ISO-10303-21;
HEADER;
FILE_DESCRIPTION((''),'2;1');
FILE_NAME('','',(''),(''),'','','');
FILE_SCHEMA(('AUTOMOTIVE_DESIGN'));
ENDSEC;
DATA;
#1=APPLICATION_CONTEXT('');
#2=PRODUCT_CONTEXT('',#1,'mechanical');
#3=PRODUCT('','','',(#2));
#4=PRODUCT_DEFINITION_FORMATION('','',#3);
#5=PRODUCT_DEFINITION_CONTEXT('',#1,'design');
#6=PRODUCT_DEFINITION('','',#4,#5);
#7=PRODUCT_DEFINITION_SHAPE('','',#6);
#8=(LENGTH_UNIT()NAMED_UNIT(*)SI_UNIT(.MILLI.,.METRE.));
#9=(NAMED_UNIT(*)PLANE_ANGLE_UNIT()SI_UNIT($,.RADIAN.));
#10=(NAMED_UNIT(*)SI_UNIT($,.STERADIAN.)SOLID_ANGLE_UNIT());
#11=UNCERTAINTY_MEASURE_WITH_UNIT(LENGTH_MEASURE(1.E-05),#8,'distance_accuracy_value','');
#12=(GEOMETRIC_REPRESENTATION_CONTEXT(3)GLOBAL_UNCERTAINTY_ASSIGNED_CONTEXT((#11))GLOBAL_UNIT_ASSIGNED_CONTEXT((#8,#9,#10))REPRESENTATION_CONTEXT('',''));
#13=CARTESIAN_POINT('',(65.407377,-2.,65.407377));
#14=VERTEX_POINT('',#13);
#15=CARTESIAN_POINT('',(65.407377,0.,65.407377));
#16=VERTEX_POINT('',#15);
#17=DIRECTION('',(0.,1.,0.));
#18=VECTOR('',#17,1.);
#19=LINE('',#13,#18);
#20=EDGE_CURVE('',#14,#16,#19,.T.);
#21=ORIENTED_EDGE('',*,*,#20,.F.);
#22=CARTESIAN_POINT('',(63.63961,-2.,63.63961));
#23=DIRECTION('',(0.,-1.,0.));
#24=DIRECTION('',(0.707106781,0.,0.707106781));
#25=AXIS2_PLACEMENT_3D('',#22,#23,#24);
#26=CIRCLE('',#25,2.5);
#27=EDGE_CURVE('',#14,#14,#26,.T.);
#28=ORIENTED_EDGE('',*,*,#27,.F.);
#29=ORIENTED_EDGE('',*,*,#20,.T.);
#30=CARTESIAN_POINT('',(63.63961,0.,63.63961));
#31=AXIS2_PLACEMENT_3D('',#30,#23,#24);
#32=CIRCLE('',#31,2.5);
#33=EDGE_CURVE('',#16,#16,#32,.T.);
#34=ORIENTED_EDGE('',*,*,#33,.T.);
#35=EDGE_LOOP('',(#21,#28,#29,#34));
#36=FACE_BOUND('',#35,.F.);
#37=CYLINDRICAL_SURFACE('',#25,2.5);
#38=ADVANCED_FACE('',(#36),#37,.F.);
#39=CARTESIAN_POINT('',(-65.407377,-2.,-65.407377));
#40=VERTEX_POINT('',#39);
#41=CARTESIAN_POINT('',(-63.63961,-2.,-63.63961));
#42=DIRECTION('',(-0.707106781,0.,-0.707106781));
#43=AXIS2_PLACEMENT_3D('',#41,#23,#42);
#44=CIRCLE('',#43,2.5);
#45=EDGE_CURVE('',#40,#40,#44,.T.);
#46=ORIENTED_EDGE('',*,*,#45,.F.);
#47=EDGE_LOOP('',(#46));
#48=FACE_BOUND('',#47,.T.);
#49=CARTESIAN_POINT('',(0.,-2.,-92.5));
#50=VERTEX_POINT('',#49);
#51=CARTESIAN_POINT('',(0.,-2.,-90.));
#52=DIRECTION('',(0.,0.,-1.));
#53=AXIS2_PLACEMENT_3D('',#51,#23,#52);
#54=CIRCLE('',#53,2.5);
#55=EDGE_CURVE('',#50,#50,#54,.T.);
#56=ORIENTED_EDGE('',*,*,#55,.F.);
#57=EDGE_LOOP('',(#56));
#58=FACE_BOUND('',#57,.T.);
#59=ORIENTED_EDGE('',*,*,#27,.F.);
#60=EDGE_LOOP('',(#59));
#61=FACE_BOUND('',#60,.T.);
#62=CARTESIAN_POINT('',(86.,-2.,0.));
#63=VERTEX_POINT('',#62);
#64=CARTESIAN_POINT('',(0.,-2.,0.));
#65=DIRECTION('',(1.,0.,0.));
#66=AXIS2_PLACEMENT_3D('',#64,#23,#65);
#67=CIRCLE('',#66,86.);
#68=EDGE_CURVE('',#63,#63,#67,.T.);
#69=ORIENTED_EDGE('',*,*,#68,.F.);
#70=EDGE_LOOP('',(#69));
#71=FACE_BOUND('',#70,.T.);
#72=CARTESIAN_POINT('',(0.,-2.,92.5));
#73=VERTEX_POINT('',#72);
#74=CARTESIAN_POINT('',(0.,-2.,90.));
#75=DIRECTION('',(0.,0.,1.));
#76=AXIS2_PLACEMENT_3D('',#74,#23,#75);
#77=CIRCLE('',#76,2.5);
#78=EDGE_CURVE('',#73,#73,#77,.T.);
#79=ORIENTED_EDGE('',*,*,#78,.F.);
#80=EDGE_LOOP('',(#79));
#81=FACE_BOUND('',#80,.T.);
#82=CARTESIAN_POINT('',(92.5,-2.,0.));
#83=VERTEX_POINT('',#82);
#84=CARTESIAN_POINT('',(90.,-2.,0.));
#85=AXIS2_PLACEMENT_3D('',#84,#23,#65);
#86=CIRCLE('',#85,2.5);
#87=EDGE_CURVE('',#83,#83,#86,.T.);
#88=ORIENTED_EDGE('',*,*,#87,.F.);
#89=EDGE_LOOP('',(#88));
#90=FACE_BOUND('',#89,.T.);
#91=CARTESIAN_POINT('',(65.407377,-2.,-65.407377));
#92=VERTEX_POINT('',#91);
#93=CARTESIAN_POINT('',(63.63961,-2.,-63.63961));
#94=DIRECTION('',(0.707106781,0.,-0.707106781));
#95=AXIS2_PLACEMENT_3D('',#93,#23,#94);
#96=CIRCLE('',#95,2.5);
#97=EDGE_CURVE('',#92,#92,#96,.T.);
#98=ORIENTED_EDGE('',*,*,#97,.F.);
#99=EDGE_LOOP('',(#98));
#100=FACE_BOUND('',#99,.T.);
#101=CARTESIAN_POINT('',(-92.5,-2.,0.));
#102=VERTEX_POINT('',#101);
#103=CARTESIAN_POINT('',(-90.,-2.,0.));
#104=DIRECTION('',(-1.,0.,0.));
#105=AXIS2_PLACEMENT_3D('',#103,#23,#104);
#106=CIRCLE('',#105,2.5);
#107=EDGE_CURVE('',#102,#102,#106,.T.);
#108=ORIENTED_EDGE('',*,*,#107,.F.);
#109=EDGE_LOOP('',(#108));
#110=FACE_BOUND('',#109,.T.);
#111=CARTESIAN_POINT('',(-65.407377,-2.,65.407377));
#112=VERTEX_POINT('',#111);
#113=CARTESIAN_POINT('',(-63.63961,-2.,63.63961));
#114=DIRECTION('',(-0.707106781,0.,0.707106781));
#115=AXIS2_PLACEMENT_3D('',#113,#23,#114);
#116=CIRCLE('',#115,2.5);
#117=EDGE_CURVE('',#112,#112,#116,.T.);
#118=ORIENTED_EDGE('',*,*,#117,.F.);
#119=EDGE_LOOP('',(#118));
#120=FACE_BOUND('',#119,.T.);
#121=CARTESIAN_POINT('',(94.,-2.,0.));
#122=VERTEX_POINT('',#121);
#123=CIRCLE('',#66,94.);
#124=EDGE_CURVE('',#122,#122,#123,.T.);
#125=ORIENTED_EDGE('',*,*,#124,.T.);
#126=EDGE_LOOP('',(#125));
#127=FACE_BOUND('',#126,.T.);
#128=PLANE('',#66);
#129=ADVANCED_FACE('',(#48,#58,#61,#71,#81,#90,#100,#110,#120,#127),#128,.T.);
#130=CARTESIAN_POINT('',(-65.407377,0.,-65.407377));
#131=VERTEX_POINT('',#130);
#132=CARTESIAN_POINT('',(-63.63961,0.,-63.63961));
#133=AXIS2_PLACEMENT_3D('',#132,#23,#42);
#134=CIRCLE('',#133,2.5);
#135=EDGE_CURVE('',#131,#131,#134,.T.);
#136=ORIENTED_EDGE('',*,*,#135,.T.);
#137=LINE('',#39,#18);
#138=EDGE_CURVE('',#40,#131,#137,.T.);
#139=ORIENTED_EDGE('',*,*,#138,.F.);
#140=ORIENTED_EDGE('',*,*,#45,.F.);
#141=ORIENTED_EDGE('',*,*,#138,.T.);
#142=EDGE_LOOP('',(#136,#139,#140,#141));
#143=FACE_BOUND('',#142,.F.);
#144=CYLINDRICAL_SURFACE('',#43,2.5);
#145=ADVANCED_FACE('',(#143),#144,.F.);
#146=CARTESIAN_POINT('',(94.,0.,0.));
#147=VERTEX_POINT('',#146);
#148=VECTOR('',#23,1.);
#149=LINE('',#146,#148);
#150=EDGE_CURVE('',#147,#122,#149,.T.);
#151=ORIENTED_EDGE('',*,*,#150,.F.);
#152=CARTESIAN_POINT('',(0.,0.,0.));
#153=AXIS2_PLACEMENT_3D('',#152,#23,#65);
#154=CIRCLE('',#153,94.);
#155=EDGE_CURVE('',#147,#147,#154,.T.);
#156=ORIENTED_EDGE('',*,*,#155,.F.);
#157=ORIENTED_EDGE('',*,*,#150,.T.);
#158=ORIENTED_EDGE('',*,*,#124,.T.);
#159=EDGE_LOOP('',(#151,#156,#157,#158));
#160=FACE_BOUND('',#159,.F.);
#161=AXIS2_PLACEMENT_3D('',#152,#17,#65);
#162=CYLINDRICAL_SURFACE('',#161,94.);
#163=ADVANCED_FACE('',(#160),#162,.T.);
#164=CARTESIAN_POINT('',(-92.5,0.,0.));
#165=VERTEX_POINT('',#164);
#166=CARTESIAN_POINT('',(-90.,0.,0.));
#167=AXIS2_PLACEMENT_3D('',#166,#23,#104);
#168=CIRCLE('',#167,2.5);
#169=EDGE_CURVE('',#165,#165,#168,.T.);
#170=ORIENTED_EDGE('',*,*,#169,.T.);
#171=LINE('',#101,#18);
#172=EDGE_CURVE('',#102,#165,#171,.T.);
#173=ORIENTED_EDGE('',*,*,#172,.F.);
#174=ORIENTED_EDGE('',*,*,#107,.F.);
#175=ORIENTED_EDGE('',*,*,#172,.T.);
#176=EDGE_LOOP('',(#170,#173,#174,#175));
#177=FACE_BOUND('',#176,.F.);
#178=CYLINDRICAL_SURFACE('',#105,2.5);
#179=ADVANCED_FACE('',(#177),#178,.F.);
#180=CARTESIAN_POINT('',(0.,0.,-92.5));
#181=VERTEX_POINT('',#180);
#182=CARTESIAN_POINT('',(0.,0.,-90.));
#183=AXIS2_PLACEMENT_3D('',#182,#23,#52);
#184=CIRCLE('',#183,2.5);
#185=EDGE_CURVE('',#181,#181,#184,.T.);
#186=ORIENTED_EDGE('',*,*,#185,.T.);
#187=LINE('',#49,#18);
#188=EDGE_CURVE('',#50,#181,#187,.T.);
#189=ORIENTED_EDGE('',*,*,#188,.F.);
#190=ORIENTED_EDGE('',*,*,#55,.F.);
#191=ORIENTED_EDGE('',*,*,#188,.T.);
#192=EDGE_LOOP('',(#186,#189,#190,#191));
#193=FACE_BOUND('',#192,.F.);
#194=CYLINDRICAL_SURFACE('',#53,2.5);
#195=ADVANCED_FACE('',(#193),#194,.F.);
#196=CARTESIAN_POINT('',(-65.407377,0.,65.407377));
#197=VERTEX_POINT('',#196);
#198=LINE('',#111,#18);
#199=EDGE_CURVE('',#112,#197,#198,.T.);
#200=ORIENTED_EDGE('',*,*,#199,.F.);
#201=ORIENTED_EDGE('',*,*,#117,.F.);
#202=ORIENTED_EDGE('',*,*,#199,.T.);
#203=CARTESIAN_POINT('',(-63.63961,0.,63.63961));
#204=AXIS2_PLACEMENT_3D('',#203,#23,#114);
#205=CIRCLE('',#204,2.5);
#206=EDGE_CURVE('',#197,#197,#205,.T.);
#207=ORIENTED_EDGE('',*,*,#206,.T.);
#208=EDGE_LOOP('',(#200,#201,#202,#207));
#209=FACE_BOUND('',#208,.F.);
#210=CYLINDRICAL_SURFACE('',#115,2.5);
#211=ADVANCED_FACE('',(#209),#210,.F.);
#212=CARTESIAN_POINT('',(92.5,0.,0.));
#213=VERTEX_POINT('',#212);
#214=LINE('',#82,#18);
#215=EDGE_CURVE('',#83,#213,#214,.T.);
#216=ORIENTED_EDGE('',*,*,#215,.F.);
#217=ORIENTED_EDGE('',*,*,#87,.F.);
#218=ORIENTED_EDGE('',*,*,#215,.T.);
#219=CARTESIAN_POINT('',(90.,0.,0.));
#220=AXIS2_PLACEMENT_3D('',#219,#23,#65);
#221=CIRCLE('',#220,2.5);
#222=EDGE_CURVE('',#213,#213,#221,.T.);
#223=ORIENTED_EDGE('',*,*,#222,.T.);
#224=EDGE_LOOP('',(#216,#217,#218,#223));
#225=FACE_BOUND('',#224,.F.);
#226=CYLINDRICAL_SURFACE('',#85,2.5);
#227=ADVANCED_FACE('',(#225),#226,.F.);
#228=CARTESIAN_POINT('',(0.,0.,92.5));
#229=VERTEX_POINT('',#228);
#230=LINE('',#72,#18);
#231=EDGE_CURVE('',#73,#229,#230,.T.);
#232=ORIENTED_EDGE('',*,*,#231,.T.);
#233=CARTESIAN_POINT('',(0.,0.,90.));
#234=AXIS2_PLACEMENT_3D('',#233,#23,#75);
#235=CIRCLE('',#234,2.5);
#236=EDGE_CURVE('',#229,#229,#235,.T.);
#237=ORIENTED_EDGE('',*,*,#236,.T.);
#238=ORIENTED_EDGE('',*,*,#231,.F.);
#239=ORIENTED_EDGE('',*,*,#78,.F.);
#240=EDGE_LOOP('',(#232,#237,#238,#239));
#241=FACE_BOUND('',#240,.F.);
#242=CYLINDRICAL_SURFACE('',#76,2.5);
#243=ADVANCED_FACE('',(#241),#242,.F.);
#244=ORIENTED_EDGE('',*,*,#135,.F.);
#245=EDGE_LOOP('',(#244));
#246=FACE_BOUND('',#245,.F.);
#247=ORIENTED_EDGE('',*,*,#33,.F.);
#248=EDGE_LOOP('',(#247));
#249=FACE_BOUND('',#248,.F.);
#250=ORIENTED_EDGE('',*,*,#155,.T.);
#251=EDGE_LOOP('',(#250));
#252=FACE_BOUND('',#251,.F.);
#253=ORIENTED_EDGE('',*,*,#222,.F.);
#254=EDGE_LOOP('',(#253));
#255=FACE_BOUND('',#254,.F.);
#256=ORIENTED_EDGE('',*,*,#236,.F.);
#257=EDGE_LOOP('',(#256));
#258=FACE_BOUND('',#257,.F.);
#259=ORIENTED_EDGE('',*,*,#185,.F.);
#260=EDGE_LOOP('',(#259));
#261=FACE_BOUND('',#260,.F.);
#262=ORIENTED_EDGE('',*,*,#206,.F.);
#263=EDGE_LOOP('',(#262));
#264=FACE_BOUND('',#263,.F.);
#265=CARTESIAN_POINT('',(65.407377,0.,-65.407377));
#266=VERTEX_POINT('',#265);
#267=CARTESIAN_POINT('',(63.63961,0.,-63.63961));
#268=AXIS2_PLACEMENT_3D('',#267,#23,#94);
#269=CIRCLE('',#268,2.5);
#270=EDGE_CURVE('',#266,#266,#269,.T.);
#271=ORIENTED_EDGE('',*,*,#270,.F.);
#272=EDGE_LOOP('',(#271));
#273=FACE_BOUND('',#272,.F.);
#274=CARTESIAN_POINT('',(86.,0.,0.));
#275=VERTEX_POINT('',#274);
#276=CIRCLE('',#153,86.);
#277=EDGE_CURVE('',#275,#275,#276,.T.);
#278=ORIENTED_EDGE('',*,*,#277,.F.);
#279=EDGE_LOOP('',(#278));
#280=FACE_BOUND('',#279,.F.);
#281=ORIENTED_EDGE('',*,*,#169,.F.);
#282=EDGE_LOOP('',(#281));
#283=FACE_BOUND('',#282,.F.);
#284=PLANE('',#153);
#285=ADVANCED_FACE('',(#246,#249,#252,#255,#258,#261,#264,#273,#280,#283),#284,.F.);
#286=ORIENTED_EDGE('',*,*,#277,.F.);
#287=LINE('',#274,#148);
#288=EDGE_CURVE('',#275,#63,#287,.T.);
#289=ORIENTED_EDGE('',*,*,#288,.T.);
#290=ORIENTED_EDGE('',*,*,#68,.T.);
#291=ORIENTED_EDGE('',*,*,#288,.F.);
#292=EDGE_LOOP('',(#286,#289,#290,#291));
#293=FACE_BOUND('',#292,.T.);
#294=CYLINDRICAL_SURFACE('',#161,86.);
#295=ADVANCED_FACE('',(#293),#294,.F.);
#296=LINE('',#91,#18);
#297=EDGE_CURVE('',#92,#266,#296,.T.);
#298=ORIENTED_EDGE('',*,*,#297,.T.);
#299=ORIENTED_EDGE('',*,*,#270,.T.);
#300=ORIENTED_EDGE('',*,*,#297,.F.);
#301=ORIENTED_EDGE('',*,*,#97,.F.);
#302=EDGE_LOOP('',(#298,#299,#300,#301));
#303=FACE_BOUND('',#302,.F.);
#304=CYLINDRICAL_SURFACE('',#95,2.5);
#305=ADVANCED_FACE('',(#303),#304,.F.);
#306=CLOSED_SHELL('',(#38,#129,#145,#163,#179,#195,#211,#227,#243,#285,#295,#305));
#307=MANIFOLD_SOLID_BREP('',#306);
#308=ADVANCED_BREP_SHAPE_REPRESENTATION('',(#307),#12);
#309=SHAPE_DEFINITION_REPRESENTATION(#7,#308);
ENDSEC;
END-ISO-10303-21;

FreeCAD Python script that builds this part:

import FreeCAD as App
import Part
import Sketcher
from FreeCAD import Vector
Q = App.Units.Quantity

doc = App.newDocument("Part")
body = doc.addObject("PartDesign::Body", "Body")

# Sketch on XZ plane
sketch1 = body.newObject("Sketcher::SketchObject", "Sketch")
sketch1.AttachmentSupport = (doc.getObject("XZ_Plane"), [""])
sketch1.MapMode = "FlatFace"
sketch1.addGeometry([
    Part.Circle(Vector(0, 0, 0), Vector(0, 0, 1), 94),
    Part.Circle(Vector(0, 0, 0), Vector(0, 0, 1), 86),
], False)
sketch1.addConstraint([
    Sketcher.Constraint("Coincident", 0, 3, -1, 1),
    Sketcher.Constraint("Coincident", 1, 3, -1, 1),
    Sketcher.Constraint("Diameter", 0, Q("188 mm")),
    Sketcher.Constraint("Diameter", 1, Q("172 mm")),
])
pad1 = body.newObject("PartDesign::Pad", "Pad")
pad1.Profile = sketch1
pad1.Length = 2

# Sketch on XZ plane
sketch2 = body.newObject("Sketcher::SketchObject", "Sketch001")
sketch2.AttachmentSupport = (doc.getObject("XZ_Plane"), [""])
sketch2.MapMode = "FlatFace"
sketch2.AttachmentOffset = App.Placement(Vector(0, 0, 2), App.Rotation())
sketch2.addGeometry(Part.Circle(Vector(90, 0, 0), Vector(0, 0, 1), 2.5), False)
sketch2.addConstraint([
    Sketcher.Constraint("PointOnObject", 0, 3, -1),
    Sketcher.Constraint("Diameter", 0, Q("5 mm")),
    Sketcher.Constraint("DistanceX", -1, 1, 0, 3, Q("90 mm")),
])
pocket1 = body.newObject("PartDesign::Pocket", "Pocket")
pocket1.Profile = sketch2
pocket1.Length = 5
doc.recompute()

polarpattern = body.newObject("PartDesign::PolarPattern", "PolarPattern")
polarpattern.Originals = [pocket1]
polarpattern.Axis = (doc.getObject("Y_Axis"), [""])
polarpattern.Angle = 360
polarpattern.Occurrences = 8
body.Tip = polarpattern

doc.recompute()
